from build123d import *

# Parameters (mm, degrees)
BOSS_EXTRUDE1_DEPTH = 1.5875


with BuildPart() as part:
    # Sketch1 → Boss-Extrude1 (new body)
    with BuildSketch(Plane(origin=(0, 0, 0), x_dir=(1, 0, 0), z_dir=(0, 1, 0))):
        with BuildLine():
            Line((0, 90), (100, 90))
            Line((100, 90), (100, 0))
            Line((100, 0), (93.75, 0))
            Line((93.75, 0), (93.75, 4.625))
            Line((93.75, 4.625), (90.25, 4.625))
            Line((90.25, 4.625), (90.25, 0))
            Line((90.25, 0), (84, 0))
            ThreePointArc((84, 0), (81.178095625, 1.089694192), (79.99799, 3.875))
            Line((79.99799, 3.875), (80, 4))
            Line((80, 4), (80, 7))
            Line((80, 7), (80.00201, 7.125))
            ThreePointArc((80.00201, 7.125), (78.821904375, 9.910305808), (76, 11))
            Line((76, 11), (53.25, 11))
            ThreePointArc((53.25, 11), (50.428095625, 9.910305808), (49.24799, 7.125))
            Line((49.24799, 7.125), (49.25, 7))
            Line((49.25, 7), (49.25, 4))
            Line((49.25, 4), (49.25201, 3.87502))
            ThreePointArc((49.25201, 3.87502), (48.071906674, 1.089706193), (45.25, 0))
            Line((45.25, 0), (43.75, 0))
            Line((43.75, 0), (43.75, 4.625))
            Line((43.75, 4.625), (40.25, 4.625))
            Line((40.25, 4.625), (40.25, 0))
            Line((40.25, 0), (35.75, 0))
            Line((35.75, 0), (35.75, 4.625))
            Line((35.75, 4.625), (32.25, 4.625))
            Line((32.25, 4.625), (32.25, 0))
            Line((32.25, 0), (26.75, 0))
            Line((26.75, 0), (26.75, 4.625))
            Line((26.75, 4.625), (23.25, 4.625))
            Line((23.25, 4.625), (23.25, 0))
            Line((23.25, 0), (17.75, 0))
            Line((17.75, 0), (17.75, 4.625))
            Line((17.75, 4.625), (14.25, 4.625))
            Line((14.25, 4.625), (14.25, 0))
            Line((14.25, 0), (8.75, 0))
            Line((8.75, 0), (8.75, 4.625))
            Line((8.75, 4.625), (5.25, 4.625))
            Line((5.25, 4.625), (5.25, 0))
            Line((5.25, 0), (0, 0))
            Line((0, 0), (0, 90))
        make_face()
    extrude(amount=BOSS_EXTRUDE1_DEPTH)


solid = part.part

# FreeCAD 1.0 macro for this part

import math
import FreeCAD as App
import Part
import Sketcher

V = App.Vector
Q = App.Units.Quantity

doc = App.newDocument("Part")
body = doc.addObject("PartDesign::Body", "Body")

# Sketch on XZ plane
sketch1 = body.newObject("Sketcher::SketchObject", "Sketch")
sketch1.AttachmentSupport = (doc.getObject("XZ_Plane"), [""])
sketch1.MapMode = "FlatFace"
sketch1.addGeometry(Part.LineSegment(V(100, -90, 0), V(0, -90, 0)), False)
sketch1.addGeometry(Part.LineSegment(V(0, -90, 0), V(0, 0, 0)), False)
sketch1.addGeometry(Part.LineSegment(V(0, 0, 0), V(5.25, 0, 0)), False)
sketch1.addGeometry(Part.LineSegment(V(5.25, 0, 0), V(5.25, -4.62, 0)), False)
sketch1.addGeometry(Part.LineSegment(V(5.25, -4.62, 0), V(8.75, -4.62, 0)), False)
sketch1.addGeometry(Part.LineSegment(V(8.75, -4.62, 0), V(8.75, 0, 0)), False)
sketch1.addGeometry(Part.LineSegment(V(8.75, 0, 0), V(14.25, 0, 0)), False)
sketch1.addGeometry(Part.LineSegment(V(14.25, 0, 0), V(14.25, -4.62, 0)), False)
sketch1.addGeometry(Part.LineSegment(V(14.25, -4.62, 0), V(17.75, -4.62, 0)), False)
sketch1.addGeometry(Part.LineSegment(V(17.75, -4.62, 0), V(17.75, 0, 0)), False)
sketch1.addGeometry(Part.LineSegment(V(17.75, 0, 0), V(23.25, 0, 0)), False)
sketch1.addGeometry(Part.LineSegment(V(23.25, 0, 0), V(23.25, -4.62, 0)), False)
sketch1.addGeometry(Part.LineSegment(V(23.25, -4.62, 0), V(26.75, -4.62, 0)), False)
sketch1.addGeometry(Part.LineSegment(V(26.75, -4.62, 0), V(26.75, 0, 0)), False)
sketch1.addGeometry(Part.LineSegment(V(26.75, 0, 0), V(32.25, 0, 0)), False)
sketch1.addGeometry(Part.LineSegment(V(32.25, 0, 0), V(32.25, -4.62, 0)), False)
sketch1.addGeometry(Part.LineSegment(V(32.25, -4.62, 0), V(35.75, -4.62, 0)), False)
sketch1.addGeometry(Part.LineSegment(V(35.75, -4.62, 0), V(35.75, 0, 0)), False)
sketch1.addGeometry(Part.LineSegment(V(35.75, 0, 0), V(40.25, 0, 0)), False)
sketch1.addGeometry(Part.LineSegment(V(40.25, 0, 0), V(40.25, -4.62, 0)), False)
sketch1.addGeometry(Part.LineSegment(V(40.25, -4.62, 0), V(43.75, -4.62, 0)), False)
sketch1.addGeometry(Part.LineSegment(V(43.75, -4.62, 0), V(43.75, 0, 0)), False)
sketch1.addGeometry(Part.LineSegment(V(43.75, 0, 0), V(45.25, 0, 0)), False)
sketch1.addGeometry(Part.ArcOfCircle(Part.Circle(V(45.37, -3.88, 0), V(0, 0, 1), 3.88), math.radians(0), math.radians(92)), False)
sketch1.addGeometry(Part.LineSegment(V(49.25, -3.88, 0), V(49.25, -4, 0)), False)
sketch1.addGeometry(Part.LineSegment(V(49.25, -4, 0), V(49.25, -7, 0)), False)
sketch1.addGeometry(Part.LineSegment(V(49.25, -7, 0), V(49.25, -7.12, 0)), False)
sketch1.addGeometry(Part.ArcOfCircle(Part.Circle(V(53.13, -7.13, 0), V(0, 0, 1), 3.88), math.radians(180), math.radians(272)), False)
sketch1.addGeometry(Part.LineSegment(V(53.25, -11, 0), V(76, -11, 0)), False)
sketch1.addGeometry(Part.ArcOfCircle(Part.Circle(V(76.12, -7.13, 0), V(0, 0, 1), 3.88), math.radians(-92), math.radians(0)), False)
sketch1.addGeometry(Part.LineSegment(V(80, -7.12, 0), V(80, -7, 0)), False)
sketch1.addGeometry(Part.LineSegment(V(80, -7, 0), V(80, -4, 0)), False)
sketch1.addGeometry(Part.LineSegment(V(80, -4, 0), V(80, -3.88, 0)), False)
sketch1.addGeometry(Part.ArcOfCircle(Part.Circle(V(83.88, -3.87, 0), V(0, 0, 1), 3.88), math.radians(88), math.radians(180)), False)
sketch1.addGeometry(Part.LineSegment(V(84, 0, 0), V(90.25, 0, 0)), False)
sketch1.addGeometry(Part.LineSegment(V(90.25, 0, 0), V(90.25, -4.62, 0)), False)
sketch1.addGeometry(Part.LineSegment(V(90.25, -4.62, 0), V(93.75, -4.62, 0)), False)
sketch1.addGeometry(Part.LineSegment(V(93.75, -4.62, 0), V(93.75, 0, 0)), False)
sketch1.addGeometry(Part.LineSegment(V(93.75, 0, 0), V(100, 0, 0)), False)
sketch1.addGeometry(Part.LineSegment(V(100, 0, 0), V(100, -90, 0)), False)
sketch1.addConstraint(Sketcher.Constraint("Coincident", 0, 2, 1, 1))
sketch1.addConstraint(Sketcher.Constraint("Coincident", 1, 2, 2, 1))
sketch1.addConstraint(Sketcher.Constraint("Coincident", 2, 2, 3, 1))
sketch1.addConstraint(Sketcher.Constraint("Coincident", 3, 2, 4, 1))
sketch1.addConstraint(Sketcher.Constraint("Coincident", 4, 2, 5, 1))
sketch1.addConstraint(Sketcher.Constraint("Coincident", 5, 2, 6, 1))
sketch1.addConstraint(Sketcher.Constraint("Coincident", 6, 2, 7, 1))
sketch1.addConstraint(Sketcher.Constraint("Coincident", 7, 2, 8, 1))
sketch1.addConstraint(Sketcher.Constraint("Coincident", 8, 2, 9, 1))
sketch1.addConstraint(Sketcher.Constraint("Coincident", 9, 2, 10, 1))
sketch1.addConstraint(Sketcher.Constraint("Coincident", 10, 2, 11, 1))
sketch1.addConstraint(Sketcher.Constraint("Coincident", 11, 2, 12, 1))
sketch1.addConstraint(Sketcher.Constraint("Coincident", 12, 2, 13, 1))
sketch1.addConstraint(Sketcher.Constraint("Coincident", 13, 2, 14, 1))
sketch1.addConstraint(Sketcher.Constraint("Coincident", 14, 2, 15, 1))
sketch1.addConstraint(Sketcher.Constraint("Coincident", 15, 2, 16, 1))
sketch1.addConstraint(Sketcher.Constraint("Coincident", 16, 2, 17, 1))
sketch1.addConstraint(Sketcher.Constraint("Coincident", 17, 2, 18, 1))
sketch1.addConstraint(Sketcher.Constraint("Coincident", 18, 2, 19, 1))
sketch1.addConstraint(Sketcher.Constraint("Coincident", 19, 2, 20, 1))
sketch1.addConstraint(Sketcher.Constraint("Coincident", 20, 2, 21, 1))
sketch1.addConstraint(Sketcher.Constraint("Coincident", 21, 2, 22, 1))
sketch1.addConstraint(Sketcher.Constraint("Coincident", 22, 2, 23, 2))
sketch1.addConstraint(Sketcher.Constraint("Coincident", 23, 1, 24, 1))
sketch1.addConstraint(Sketcher.Constraint("Coincident", 24, 2, 25, 1))
sketch1.addConstraint(Sketcher.Constraint("Coincident", 25, 2, 26, 1))
sketch1.addConstraint(Sketcher.Constraint("Coincident", 26, 2, 27, 1))
sketch1.addConstraint(Sketcher.Constraint("Coincident", 27, 2, 28, 1))
sketch1.addConstraint(Sketcher.Constraint("Coincident", 28, 2, 29, 1))
sketch1.addConstraint(Sketcher.Constraint("Coincident", 29, 2, 30, 1))
sketch1.addConstraint(Sketcher.Constraint("Coincident", 30, 2, 31, 1))
sketch1.addConstraint(Sketcher.Constraint("Coincident", 31, 2, 32, 1))
sketch1.addConstraint(Sketcher.Constraint("Coincident", 32, 2, 33, 2))
sketch1.addConstraint(Sketcher.Constraint("Coincident", 33, 1, 34, 1))
sketch1.addConstraint(Sketcher.Constraint("Coincident", 34, 2, 35, 1))
sketch1.addConstraint(Sketcher.Constraint("Coincident", 35, 2, 36, 1))
sketch1.addConstraint(Sketcher.Constraint("Coincident", 36, 2, 37, 1))
sketch1.addConstraint(Sketcher.Constraint("Coincident", 37, 2, 38, 1))
sketch1.addConstraint(Sketcher.Constraint("Coincident", 38, 2, 39, 1))
sketch1.addConstraint(Sketcher.Constraint("Coincident", 39, 2, 0, 1))
sketch1.addConstraint(Sketcher.Constraint("Horizontal", 0))
sketch1.addConstraint(Sketcher.Constraint("Vertical", 1))
sketch1.addConstraint(Sketcher.Constraint("Horizontal", 2))
sketch1.addConstraint(Sketcher.Constraint("Vertical", 3))
sketch1.addConstraint(Sketcher.Constraint("Horizontal", 4))
sketch1.addConstraint(Sketcher.Constraint("Vertical", 5))
sketch1.addConstraint(Sketcher.Constraint("Horizontal", 6))
sketch1.addConstraint(Sketcher.Constraint("Vertical", 7))
sketch1.addConstraint(Sketcher.Constraint("Horizontal", 8))
sketch1.addConstraint(Sketcher.Constraint("Vertical", 9))
sketch1.addConstraint(Sketcher.Constraint("Horizontal", 10))
sketch1.addConstraint(Sketcher.Constraint("Vertical", 11))
sketch1.addConstraint(Sketcher.Constraint("Horizontal", 12))
sketch1.addConstraint(Sketcher.Constraint("Vertical", 13))
sketch1.addConstraint(Sketcher.Constraint("Horizontal", 14))
sketch1.addConstraint(Sketcher.Constraint("Vertical", 15))
sketch1.addConstraint(Sketcher.Constraint("Horizontal", 16))
sketch1.addConstraint(Sketcher.Constraint("Vertical", 17))
sketch1.addConstraint(Sketcher.Constraint("Horizontal", 18))
sketch1.addConstraint(Sketcher.Constraint("Vertical", 19))
sketch1.addConstraint(Sketcher.Constraint("Horizontal", 20))
sketch1.addConstraint(Sketcher.Constraint("Vertical", 21))
sketch1.addConstraint(Sketcher.Constraint("Horizontal", 22))
sketch1.addConstraint(Sketcher.Constraint("Vertical", 25))
sketch1.addConstraint(Sketcher.Constraint("Horizontal", 28))
sketch1.addConstraint(Sketcher.Constraint("Vertical", 31))
sketch1.addConstraint(Sketcher.Constraint("Horizontal", 34))
sketch1.addConstraint(Sketcher.Constraint("Vertical", 35))
sketch1.addConstraint(Sketcher.Constraint("Horizontal", 36))
sketch1.addConstraint(Sketcher.Constraint("Vertical", 37))
sketch1.addConstraint(Sketcher.Constraint("Horizontal", 38))
sketch1.addConstraint(Sketcher.Constraint("Vertical", 39))
sketch1.addConstraint(Sketcher.Constraint("Coincident", 1, 2, -1, 1))
sketch1.addConstraint(Sketcher.Constraint("Equal", 27, 29))
sketch1.addConstraint(Sketcher.Constraint("Equal", 29, 33))
sketch1.addConstraint(Sketcher.Constraint("PointOnObject", 5, 2, -1))
sketch1.addConstraint(Sketcher.Constraint("PointOnObject", 9, 2, -1))
sketch1.addConstraint(Sketcher.Constraint("PointOnObject", 13, 2, -1))
sketch1.addConstraint(Sketcher.Constraint("PointOnObject", 17, 2, -1))
sketch1.addConstraint(Sketcher.Constraint("PointOnObject", 21, 2, -1))
sketch1.addConstraint(Sketcher.Constraint("PointOnObject", 33, 1, -1))
sketch1.addConstraint(Sketcher.Constraint("PointOnObject", 37, 2, -1))
sketch1.addConstraint(Sketcher.Constraint("Parallel", 30, 32))
sketch1.addConstraint(Sketcher.Constraint("Horizontal", 27, 3, 29, 3))
sketch1.addConstraint(Sketcher.Constraint("Horizontal", 4, 2, 7, 2))
sketch1.addConstraint(Sketcher.Constraint("Horizontal", 8, 2, 11, 2))
sketch1.addConstraint(Sketcher.Constraint("Horizontal", 12, 2, 15, 2))
sketch1.addConstraint(Sketcher.Constraint("Horizontal", 16, 2, 19, 2))
sketch1.addConstraint(Sketcher.Constraint("Horizontal", 29, 3, 26, 2))
sketch1.addConstraint(Sketcher.Constraint("Horizontal", 26, 2, 29, 2))
sketch1.addConstraint(Sketcher.Constraint("Horizontal", 25, 2, 30, 2))
sketch1.addConstraint(Sketcher.Constraint("Horizontal", 24, 2, 31, 2))
sketch1.addConstraint(Sketcher.Constraint("Horizontal", 33, 3, 32, 2))
sketch1.addConstraint(Sketcher.Constraint("Horizontal", 20, 2, 35, 2))
sketch1.addConstraint(Sketcher.Constraint("Equal", 4, 8))
sketch1.addConstraint(Sketcher.Constraint("Equal", 6, 10))
sketch1.addConstraint(Sketcher.Constraint("Equal", 8, 12))
sketch1.addConstraint(Sketcher.Constraint("Equal", 10, 14))
sketch1.addConstraint(Sketcher.Constraint("Equal", 12, 16))
sketch1.addConstraint(Sketcher.Constraint("Equal", 16, 20))
sketch1.addConstraint(Sketcher.Constraint("Equal", 20, 36))
sketch1.addConstraint(Sketcher.Constraint("Equal", 34, 38))
sketch1.addConstraint(Sketcher.Constraint("Equal", 26, 30))
sketch1.addConstraint(Sketcher.Constraint("Equal", 30, 32))
sketch1.addConstraint(Sketcher.Constraint("DistanceX", 0, 2, 0, 1, Q("100 mm")))
sketch1.addConstraint(Sketcher.Constraint("DistanceY", 1, 1, 1, 2, Q("90 mm")))
sketch1.addConstraint(Sketcher.Constraint("DistanceY", 25, 2, 25, 1, Q("3 mm")))
sketch1.addConstraint(Sketcher.Constraint("DistanceX", 4, 1, 4, 2, Q("3.5 mm")))
sketch1.addConstraint(Sketcher.Constraint("DistanceX", 6, 1, 6, 2, Q("5.5 mm")))
sketch1.addConstraint(Sketcher.Constraint("DistanceX", 18, 1, 18, 2, Q("4.5 mm")))
sketch1.addConstraint(Sketcher.Constraint("DistanceX", 22, 1, 22, 2, Q("1.5 mm")))
sketch1.addConstraint(Sketcher.Constraint("DistanceY", 24, 2, -1, 1, Q("4 mm")))
sketch1.addConstraint(Sketcher.Constraint("DistanceY", 27, 2, -1, 1, Q("11 mm")))
sketch1.addConstraint(Sketcher.Constraint("DistanceX", -1, 1, 28, 2, Q("76 mm")))
sketch1.addConstraint(Sketcher.Constraint("DistanceX", -1, 1, 30, 2, Q("80 mm")))
sketch1.addConstraint(Sketcher.Constraint("DistanceX", 22, 2, 24, 2, Q("4 mm")))
sketch1.addConstraint(Sketcher.Constraint("DistanceX", 2, 1, 2, 2, Q("5.25 mm")))
sketch1.addConstraint(Sketcher.Constraint("DistanceY", 27, 3, 3, 2, Q("2.500001 mm")))
sketch1.addConstraint(Sketcher.Constraint("DistanceY", 3, 2, 3, 1, Q("4.625 mm")))
sketch1.addConstraint(Sketcher.Constraint("Radius", 23, Q("3.877031 mm")))
sketch1.addConstraint(Sketcher.Constraint("Radius", 27, Q("3.877015 mm")))
sketch1.addConstraint(Sketcher.Constraint("DistanceX", -1, 1, 23, 3, Q("45.374979 mm")))
sketch1.addConstraint(Sketcher.Constraint("DistanceY", 23, 1, -1, 1, Q("3.87502 mm")))
pad1 = body.newObject("PartDesign::Pad", "Pad")
pad1.Profile = sketch1
pad1.Length = 1.5875
pad1.Reversed = True

doc.recompute()
